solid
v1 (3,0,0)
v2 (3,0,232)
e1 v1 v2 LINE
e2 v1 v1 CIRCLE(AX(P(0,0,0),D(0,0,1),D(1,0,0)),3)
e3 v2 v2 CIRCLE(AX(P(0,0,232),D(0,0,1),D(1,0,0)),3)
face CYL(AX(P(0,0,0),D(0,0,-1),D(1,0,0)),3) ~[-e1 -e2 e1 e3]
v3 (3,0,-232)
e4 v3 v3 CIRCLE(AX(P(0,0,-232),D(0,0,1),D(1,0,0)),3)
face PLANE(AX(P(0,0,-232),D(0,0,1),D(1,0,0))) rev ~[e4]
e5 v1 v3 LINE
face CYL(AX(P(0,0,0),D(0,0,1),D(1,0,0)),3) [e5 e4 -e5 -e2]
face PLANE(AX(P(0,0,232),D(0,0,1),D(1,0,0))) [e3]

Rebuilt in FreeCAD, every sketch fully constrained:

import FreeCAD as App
import Part
import Sketcher

V = App.Vector
Q = App.Units.Quantity

doc = App.newDocument("Part")
body = doc.addObject("PartDesign::Body", "Body")

# Sketch on XY plane
sketch1 = body.newObject("Sketcher::SketchObject", "Sketch")
sketch1.AttachmentSupport = (doc.getObject("XY_Plane"), [""])
sketch1.MapMode = "FlatFace"
sketch1.addGeometry(Part.Circle(V(0, 0, 0), V(0, 0, 1), 3), False)
sketch1.addConstraint(Sketcher.Constraint("Coincident", 0, 3, -1, 1))
sketch1.addConstraint(Sketcher.Constraint("Diameter", 0, Q("6 mm")))
pad1 = body.newObject("PartDesign::Pad", "Pad")
pad1.Profile = sketch1
pad1.Length = 464
pad1.Midplane = True

doc.recompute()
